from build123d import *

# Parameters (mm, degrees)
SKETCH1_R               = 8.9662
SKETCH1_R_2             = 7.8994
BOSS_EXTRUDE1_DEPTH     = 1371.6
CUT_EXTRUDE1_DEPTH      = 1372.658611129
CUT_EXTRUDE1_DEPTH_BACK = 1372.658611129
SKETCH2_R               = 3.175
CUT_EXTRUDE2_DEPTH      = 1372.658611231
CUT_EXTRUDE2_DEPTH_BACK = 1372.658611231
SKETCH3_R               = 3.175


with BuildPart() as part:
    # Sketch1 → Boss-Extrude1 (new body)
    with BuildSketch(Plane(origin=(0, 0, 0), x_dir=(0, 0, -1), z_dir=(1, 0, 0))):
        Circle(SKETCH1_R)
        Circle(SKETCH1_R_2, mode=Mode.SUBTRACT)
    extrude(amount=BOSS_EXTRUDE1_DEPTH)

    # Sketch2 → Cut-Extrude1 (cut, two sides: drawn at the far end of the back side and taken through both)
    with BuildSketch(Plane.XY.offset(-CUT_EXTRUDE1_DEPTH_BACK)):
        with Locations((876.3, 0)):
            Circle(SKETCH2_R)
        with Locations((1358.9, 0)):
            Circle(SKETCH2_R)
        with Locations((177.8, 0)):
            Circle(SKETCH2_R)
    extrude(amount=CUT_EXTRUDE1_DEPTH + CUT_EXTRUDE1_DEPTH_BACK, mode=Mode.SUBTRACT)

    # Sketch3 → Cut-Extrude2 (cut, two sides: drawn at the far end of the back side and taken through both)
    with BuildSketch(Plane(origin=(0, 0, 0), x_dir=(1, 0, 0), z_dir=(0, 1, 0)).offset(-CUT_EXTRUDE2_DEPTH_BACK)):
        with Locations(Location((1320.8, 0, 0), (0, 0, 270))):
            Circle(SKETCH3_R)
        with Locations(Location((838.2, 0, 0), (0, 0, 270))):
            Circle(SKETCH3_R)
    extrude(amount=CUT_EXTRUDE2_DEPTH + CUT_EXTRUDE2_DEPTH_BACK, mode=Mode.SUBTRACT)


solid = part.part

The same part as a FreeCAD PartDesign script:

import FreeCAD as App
import Part
import Sketcher
Q = App.Units.Quantity

doc = App.newDocument("Part")
body = doc.addObject("PartDesign::Body", "Body")

# Sketch on YZ plane
sketch1 = body.newObject("Sketcher::SketchObject", "Sketch")
sketch1.AttachmentSupport = (doc.getObject("YZ_Plane"), [""])
sketch1.MapMode = "FlatFace"
sketch1.addGeometry(Part.Circle(App.Vector(0, 0, 0), App.Vector(0, 0, 1), 8.9662), False)
sketch1.addGeometry(Part.Circle(App.Vector(0, 0, 0), App.Vector(0, 0, 1), 7.8994), False)
sketch1.addConstraint(Sketcher.Constraint("Coincident", 0, 3, -1, 1))
sketch1.addConstraint(Sketcher.Constraint("Coincident", 1, 3, -1, 1))
sketch1.addConstraint(Sketcher.Constraint("Diameter", 0, Q("0.706 in")))
sketch1.addConstraint(Sketcher.Constraint("Diameter", 1, Q("0.622 in")))
pad1 = body.newObject("PartDesign::Pad", "Pad")
pad1.Profile = sketch1
pad1.Length = Q("54 in")

# Sketch on XY plane
sketch2 = body.newObject("Sketcher::SketchObject", "Sketch001")
sketch2.AttachmentSupport = (doc.getObject("XY_Plane"), [""])
sketch2.MapMode = "FlatFace"
sketch2.addGeometry(Part.Circle(App.Vector(876.3, 0, 0), App.Vector(0, 0, 1), 3.175), False)
sketch2.addGeometry(Part.Circle(App.Vector(1358.9, 0, 0), App.Vector(0, 0, 1), 3.175), False)
sketch2.addGeometry(Part.Circle(App.Vector(177.8, 0, 0), App.Vector(0, 0, 1), 3.175), False)
sketch2.addConstraint(Sketcher.Constraint("Equal", 0, 1))
sketch2.addConstraint(Sketcher.Constraint("Equal", 1, 2))
sketch2.addConstraint(Sketcher.Constraint("PointOnObject", 0, 3, -1))
sketch2.addConstraint(Sketcher.Constraint("PointOnObject", 1, 3, -1))
sketch2.addConstraint(Sketcher.Constraint("PointOnObject", 2, 3, -1))
sketch2.addConstraint(Sketcher.Constraint("Diameter", 0, Q("0.25 in")))
sketch2.addConstraint(Sketcher.Constraint("DistanceX", -1, 1, 2, 3, Q("7 in")))
sketch2.addConstraint(Sketcher.Constraint("DistanceX", 0, 3, 1, 3, Q("19 in")))
sketch2.addConstraint(Sketcher.Constraint("DistanceX", -1, 1, 0, 3, Q("34.5 in")))
pocket1 = body.newObject("PartDesign::Pocket", "Pocket")
pocket1.Profile = sketch2
pocket1.Type = "ThroughAll"
pocket1.Midplane = True

# Sketch on XZ plane
sketch3 = body.newObject("Sketcher::SketchObject", "Sketch002")
sketch3.AttachmentSupport = (doc.getObject("XZ_Plane"), [""])
sketch3.MapMode = "FlatFace"
sketch3.addGeometry(Part.Circle(App.Vector(1320.8, 0, 0), App.Vector(0, 0, 1), 3.175), False)
sketch3.addGeometry(Part.Circle(App.Vector(838.2, 0, 0), App.Vector(0, 0, 1), 3.175), False)
sketch3.addConstraint(Sketcher.Constraint("Equal", 0, 1))
sketch3.addConstraint(Sketcher.Constraint("PointOnObject", 0, 3, -1))
sketch3.addConstraint(Sketcher.Constraint("PointOnObject", 1, 3, -1))
sketch3.addConstraint(Sketcher.Constraint("Diameter", 0, Q("0.25 in")))
sketch3.addConstraint(Sketcher.Constraint("DistanceX", -1, 1, 0, 3, Q("52 in")))
sketch3.addConstraint(Sketcher.Constraint("DistanceX", -1, 1, 1, 3, Q("33 in")))
pocket2 = body.newObject("PartDesign::Pocket", "Pocket001")
pocket2.Profile = sketch3
pocket2.Type = "ThroughAll"
pocket2.Midplane = True

doc.recompute()
